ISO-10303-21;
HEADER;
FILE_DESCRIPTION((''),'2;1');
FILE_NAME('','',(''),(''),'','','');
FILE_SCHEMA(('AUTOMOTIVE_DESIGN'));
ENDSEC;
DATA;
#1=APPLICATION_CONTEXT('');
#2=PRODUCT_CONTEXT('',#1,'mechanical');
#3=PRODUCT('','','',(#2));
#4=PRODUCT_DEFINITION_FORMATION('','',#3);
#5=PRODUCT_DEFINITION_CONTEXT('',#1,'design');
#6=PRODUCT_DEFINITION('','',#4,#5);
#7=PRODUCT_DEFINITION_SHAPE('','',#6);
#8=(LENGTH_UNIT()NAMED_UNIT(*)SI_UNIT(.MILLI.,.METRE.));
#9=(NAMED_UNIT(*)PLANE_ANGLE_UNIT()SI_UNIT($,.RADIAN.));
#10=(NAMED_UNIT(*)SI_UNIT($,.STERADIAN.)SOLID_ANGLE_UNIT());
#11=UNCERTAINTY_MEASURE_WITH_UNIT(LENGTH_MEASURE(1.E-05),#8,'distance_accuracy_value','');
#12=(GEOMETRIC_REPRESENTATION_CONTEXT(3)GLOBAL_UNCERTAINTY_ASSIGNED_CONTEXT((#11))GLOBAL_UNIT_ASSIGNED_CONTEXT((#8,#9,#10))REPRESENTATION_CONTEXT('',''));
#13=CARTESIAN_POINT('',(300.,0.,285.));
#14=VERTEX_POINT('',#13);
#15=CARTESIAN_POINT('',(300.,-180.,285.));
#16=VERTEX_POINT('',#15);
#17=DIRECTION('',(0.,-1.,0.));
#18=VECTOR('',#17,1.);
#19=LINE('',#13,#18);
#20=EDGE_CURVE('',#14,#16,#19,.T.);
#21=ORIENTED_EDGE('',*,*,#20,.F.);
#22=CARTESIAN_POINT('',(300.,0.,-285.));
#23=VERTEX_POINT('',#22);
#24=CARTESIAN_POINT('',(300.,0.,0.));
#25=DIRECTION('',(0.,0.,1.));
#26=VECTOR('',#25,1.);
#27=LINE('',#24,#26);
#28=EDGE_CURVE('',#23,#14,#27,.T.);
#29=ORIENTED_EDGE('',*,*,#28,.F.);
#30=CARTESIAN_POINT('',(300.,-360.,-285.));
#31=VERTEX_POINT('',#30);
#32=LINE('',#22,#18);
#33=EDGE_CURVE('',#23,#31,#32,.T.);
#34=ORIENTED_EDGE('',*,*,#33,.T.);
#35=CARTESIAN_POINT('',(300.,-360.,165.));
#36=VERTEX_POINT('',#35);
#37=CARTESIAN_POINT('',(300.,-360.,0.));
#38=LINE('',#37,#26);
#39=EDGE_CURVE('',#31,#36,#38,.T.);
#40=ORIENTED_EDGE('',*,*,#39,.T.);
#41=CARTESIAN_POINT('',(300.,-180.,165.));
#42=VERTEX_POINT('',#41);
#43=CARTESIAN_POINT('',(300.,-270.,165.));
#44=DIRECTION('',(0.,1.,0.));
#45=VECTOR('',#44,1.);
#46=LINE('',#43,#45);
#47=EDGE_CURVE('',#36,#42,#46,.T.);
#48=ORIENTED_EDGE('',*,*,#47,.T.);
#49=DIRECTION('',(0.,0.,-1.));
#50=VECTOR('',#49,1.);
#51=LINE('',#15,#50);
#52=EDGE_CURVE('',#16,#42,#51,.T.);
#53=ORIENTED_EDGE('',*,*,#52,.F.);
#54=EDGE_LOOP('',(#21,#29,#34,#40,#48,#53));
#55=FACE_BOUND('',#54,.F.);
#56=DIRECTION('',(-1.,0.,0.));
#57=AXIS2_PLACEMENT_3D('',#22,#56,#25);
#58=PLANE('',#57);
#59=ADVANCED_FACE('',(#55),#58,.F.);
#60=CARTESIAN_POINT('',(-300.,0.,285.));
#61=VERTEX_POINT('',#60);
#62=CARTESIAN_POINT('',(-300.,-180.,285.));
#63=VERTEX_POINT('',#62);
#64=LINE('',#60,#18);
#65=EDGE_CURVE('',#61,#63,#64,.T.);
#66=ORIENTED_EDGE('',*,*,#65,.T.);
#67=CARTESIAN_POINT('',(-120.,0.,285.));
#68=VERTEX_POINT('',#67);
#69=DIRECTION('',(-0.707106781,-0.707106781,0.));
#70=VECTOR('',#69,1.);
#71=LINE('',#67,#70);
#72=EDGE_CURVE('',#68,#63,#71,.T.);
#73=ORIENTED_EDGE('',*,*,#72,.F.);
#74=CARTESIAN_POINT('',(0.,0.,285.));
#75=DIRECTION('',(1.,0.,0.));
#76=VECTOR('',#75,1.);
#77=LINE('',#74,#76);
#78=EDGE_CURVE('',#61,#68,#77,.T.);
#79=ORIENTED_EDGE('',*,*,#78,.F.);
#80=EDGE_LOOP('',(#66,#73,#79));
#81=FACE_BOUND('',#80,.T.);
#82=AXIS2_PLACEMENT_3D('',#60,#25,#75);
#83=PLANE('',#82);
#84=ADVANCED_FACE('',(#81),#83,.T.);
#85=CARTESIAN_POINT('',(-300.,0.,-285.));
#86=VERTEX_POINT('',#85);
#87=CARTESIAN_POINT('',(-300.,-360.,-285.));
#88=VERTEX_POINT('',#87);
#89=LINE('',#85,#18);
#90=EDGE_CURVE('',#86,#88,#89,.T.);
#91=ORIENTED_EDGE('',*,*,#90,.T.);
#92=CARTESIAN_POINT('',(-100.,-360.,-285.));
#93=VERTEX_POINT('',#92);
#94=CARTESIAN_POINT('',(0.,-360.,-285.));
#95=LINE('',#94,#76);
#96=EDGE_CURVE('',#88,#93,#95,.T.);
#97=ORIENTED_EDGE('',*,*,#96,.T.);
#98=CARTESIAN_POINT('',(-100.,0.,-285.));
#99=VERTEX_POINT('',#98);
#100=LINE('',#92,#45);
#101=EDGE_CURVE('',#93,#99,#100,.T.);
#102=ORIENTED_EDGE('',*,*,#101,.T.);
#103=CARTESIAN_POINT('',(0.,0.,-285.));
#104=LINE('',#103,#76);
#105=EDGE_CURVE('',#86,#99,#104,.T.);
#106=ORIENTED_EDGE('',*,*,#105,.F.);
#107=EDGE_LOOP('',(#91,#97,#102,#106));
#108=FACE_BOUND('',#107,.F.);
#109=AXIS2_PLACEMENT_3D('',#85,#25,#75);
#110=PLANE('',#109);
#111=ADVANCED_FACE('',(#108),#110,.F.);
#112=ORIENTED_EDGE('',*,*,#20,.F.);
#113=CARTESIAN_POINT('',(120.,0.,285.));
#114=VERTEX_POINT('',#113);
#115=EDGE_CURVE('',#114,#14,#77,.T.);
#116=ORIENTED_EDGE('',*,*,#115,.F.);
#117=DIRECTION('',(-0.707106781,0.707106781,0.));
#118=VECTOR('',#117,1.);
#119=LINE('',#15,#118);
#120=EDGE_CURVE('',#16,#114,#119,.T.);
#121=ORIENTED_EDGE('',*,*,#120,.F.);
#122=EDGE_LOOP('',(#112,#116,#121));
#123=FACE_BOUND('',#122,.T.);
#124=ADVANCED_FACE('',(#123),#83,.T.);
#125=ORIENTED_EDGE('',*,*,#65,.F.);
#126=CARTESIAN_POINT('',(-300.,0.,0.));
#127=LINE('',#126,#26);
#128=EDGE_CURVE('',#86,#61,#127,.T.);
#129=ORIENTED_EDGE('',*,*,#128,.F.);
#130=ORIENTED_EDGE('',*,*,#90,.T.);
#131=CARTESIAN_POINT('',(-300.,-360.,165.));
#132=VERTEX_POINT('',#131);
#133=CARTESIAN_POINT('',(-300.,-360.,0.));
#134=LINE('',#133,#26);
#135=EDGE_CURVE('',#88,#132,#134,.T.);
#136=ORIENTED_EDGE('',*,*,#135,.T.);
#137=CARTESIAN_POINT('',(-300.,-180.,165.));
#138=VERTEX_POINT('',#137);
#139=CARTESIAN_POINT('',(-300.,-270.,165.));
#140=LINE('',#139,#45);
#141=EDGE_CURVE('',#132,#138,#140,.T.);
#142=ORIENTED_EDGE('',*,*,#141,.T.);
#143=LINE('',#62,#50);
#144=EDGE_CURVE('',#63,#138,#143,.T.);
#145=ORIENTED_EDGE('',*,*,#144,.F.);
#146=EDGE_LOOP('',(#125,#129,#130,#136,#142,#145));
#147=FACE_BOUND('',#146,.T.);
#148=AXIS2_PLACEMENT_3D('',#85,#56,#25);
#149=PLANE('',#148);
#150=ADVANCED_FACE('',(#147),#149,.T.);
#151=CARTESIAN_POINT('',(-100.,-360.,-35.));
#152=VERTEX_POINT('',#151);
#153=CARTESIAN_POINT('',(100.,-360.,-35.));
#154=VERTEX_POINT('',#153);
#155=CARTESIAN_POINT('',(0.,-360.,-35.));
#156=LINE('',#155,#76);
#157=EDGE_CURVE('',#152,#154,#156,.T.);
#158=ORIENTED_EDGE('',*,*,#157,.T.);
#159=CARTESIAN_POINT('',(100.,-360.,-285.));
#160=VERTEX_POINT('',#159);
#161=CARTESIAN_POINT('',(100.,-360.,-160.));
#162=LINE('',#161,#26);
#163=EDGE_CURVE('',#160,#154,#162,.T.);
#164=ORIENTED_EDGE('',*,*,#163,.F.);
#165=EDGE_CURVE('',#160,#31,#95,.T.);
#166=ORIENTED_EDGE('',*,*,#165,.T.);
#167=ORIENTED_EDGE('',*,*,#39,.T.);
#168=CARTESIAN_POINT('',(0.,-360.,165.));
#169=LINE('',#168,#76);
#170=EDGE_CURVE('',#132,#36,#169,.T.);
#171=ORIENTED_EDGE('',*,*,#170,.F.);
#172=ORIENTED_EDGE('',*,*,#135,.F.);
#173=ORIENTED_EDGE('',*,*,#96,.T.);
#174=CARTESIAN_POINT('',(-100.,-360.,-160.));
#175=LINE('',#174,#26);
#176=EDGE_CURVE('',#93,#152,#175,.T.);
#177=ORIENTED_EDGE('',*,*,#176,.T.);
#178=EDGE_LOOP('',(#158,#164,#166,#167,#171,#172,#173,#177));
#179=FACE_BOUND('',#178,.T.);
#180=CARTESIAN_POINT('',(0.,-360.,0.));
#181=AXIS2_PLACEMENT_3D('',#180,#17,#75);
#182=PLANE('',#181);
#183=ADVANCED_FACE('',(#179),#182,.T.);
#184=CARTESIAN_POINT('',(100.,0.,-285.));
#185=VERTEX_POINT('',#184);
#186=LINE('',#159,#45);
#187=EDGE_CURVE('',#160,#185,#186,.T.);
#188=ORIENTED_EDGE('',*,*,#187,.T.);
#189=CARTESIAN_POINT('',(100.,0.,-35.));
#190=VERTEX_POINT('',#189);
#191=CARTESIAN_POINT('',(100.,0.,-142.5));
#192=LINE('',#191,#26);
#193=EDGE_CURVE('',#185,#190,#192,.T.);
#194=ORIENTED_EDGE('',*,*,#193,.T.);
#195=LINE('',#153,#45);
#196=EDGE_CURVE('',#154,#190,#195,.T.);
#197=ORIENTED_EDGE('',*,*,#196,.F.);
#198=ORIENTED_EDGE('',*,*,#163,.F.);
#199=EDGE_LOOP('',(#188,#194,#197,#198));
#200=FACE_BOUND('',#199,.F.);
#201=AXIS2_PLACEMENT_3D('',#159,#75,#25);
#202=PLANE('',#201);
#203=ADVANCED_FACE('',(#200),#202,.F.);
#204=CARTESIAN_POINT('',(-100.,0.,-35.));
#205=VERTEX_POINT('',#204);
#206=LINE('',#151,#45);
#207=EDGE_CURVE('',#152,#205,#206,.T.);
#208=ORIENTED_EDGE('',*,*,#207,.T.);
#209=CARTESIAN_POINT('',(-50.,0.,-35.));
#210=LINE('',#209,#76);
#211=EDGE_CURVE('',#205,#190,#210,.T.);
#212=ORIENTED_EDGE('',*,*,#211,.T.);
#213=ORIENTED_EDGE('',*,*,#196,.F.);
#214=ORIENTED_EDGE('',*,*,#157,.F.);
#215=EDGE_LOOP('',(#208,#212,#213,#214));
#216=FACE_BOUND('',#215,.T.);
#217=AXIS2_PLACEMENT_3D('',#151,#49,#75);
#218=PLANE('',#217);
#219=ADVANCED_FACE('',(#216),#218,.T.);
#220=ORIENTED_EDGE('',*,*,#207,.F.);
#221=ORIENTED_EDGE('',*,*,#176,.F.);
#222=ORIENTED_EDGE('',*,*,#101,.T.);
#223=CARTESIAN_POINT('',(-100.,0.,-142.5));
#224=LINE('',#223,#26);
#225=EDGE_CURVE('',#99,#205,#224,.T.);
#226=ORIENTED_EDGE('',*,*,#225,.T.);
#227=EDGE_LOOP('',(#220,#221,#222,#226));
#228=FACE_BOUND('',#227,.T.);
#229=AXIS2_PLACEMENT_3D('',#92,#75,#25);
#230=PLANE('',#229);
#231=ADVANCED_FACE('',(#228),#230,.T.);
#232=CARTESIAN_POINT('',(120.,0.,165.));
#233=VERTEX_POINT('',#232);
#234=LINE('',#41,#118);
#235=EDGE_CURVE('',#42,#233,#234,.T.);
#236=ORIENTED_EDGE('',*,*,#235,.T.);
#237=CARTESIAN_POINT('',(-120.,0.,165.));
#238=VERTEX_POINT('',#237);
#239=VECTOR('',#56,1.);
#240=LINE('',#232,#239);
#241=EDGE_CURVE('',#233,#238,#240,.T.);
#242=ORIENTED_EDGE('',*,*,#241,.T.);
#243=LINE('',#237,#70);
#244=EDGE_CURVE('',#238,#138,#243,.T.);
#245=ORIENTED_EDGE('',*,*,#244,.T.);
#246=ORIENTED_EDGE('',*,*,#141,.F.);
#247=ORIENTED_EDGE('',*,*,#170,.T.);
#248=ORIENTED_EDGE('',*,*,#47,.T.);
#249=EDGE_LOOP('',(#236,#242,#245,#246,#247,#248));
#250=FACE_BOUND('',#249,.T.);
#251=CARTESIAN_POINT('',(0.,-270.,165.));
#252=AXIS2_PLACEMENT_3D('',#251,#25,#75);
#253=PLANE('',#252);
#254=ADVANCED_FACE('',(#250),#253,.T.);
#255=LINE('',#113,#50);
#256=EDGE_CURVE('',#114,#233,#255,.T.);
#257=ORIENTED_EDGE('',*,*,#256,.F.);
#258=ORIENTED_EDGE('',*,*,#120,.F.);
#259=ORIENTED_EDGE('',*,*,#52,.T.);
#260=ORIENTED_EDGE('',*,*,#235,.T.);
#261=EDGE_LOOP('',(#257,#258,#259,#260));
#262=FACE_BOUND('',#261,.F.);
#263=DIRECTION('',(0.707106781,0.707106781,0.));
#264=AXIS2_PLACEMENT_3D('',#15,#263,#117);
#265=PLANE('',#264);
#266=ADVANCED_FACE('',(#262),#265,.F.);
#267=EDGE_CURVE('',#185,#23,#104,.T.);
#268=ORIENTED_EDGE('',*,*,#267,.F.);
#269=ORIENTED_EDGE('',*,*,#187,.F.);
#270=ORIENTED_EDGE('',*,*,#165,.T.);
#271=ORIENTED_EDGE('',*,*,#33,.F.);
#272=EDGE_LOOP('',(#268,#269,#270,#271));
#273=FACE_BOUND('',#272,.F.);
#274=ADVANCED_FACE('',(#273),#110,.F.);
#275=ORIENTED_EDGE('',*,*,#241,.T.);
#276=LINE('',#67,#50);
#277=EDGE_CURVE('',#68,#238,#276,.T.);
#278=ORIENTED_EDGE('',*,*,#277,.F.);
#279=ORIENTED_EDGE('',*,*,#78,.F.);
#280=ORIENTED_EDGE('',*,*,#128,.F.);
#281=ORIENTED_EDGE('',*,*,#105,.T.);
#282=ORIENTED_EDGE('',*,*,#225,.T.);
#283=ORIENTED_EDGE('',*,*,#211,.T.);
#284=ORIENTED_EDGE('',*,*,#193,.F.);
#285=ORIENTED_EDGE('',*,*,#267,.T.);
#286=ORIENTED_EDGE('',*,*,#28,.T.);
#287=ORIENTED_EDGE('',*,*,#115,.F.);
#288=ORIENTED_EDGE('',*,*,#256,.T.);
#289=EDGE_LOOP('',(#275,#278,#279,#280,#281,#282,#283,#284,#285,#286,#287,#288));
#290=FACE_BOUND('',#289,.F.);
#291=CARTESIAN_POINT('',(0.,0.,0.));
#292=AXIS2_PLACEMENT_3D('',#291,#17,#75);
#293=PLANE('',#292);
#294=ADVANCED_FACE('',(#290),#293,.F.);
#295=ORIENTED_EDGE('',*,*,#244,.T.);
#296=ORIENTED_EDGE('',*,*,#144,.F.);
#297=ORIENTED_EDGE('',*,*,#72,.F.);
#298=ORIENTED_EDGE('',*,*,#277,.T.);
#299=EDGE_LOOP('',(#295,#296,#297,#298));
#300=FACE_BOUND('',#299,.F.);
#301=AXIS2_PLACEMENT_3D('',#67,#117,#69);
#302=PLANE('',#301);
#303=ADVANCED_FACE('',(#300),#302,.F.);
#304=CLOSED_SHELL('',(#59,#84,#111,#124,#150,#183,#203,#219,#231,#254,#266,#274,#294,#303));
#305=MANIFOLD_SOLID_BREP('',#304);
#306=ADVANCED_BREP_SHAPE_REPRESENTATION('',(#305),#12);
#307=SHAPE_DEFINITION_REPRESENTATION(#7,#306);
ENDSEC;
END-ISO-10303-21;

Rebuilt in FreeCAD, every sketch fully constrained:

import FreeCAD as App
import Part
import Sketcher
from FreeCAD import Vector
Q = App.Units.Quantity


def add_polygon(sketch, points):
    """Adds a closed chain of lines whose ends are joined by coincident constraints."""
    first, n = sketch.GeometryCount, len(points)
    for a, b in zip(points, points[1:] + points[:1]):
        sketch.addGeometry(Part.LineSegment(App.Vector(*a, 0), App.Vector(*b, 0)), False)
    for i in range(n):
        sketch.addConstraint(Sketcher.Constraint("Coincident", first + i, 2, first + (i + 1) % n, 1))

doc = App.newDocument("Part")
body = doc.addObject("PartDesign::Body", "Body")

# Sketch on XZ plane
sketch1 = doc.addObject("Sketcher::SketchObject", "Sketch")
body.addObject(sketch1)
sketch1.AttachmentSupport = (doc.XZ_Plane, [""])
sketch1.MapMode = "FlatFace"
add_polygon(sketch1, [(-300, 285), (-300, -285), (300, -285), (300, 285)])  # lines 0-3
sketch1.addConstraint(Sketcher.Constraint("Vertical", 0))
sketch1.addConstraint(Sketcher.Constraint("Horizontal", 1))
sketch1.addConstraint(Sketcher.Constraint("Vertical", 2))
sketch1.addConstraint(Sketcher.Constraint("Horizontal", 3))
sketch1.addConstraint(Sketcher.Constraint("Symmetric", 0, 2, 2, 2, -1, 1))
sketch1.addConstraint(Sketcher.Constraint("DistanceX", 1, 1, 1, 2, Q("600 mm")))
sketch1.addConstraint(Sketcher.Constraint("DistanceY", 0, 2, 0, 1, Q("570 mm")))
pad1 = doc.addObject("PartDesign::Pad", "Pad")
body.addObject(pad1)
pad1.Profile = sketch1
pad1.Length = 360

# Sketch on XY plane
sketch2 = doc.addObject("Sketcher::SketchObject", "Sketch001")
body.addObject(sketch2)
sketch2.AttachmentSupport = (doc.XY_Plane, [""])
sketch2.MapMode = "FlatFace"
sketch2.AttachmentOffset = App.Placement(Vector(0, 0, 285), App.Rotation())
add_polygon(sketch2, [(-300, -180), (-300, -360), (300, -360), (300, -180), (120, 0), (-120, 0)])  # lines 0-5
sketch2.addConstraint(Sketcher.Constraint("Vertical", 0))
sketch2.addConstraint(Sketcher.Constraint("Horizontal", 1))
sketch2.addConstraint(Sketcher.Constraint("Vertical", 2))
sketch2.addConstraint(Sketcher.Constraint("Horizontal", 4))
sketch2.addConstraint(Sketcher.Constraint("Symmetric", 3, 2, 4, 2, -1, 1))
sketch2.addConstraint(Sketcher.Constraint("Symmetric", 2, 2, 5, 2, -2))
sketch2.addConstraint(Sketcher.Constraint("Perpendicular", 3, 5))
sketch2.addConstraint(Sketcher.Constraint("DistanceX", 1, 1, 1, 2, Q("600 mm")))
sketch2.addConstraint(Sketcher.Constraint("DistanceX", 4, 2, 4, 1, Q("240 mm")))
sketch2.addConstraint(Sketcher.Constraint("DistanceY", 0, 2, 0, 1, Q("180 mm")))
pocket1 = doc.addObject("PartDesign::Pocket", "Pocket")
body.addObject(pocket1)
pocket1.Profile = sketch2
pocket1.Length = 120

# Sketch on XZ plane
sketch3 = doc.addObject("Sketcher::SketchObject", "Sketch002")
body.addObject(sketch3)
sketch3.AttachmentSupport = (doc.XZ_Plane, [""])
sketch3.MapMode = "FlatFace"
sketch3.AttachmentOffset = App.Placement(Vector(0, 0, 360), App.Rotation())
add_polygon(sketch3, [(-100, -35), (-100, -285), (100, -285), (100, -35)])  # lines 0-3
sketch3.addConstraint(Sketcher.Constraint("Vertical", 0))
sketch3.addConstraint(Sketcher.Constraint("Horizontal", 1))
sketch3.addConstraint(Sketcher.Constraint("Vertical", 2))
sketch3.addConstraint(Sketcher.Constraint("Horizontal", 3))
sketch3.addConstraint(Sketcher.Constraint("DistanceX", 1, 1, 1, 2, Q("200 mm")))
sketch3.addConstraint(Sketcher.Constraint("DistanceY", 0, 2, 0, 1, Q("250 mm")))
sketch3.addConstraint(Sketcher.Constraint("DistanceX", 0, 2, -1, 1, Q("100 mm")))
sketch3.addConstraint(Sketcher.Constraint("DistanceY", 0, 2, -1, 1, Q("285 mm")))
pocket2 = doc.addObject("PartDesign::Pocket", "Pocket001")
body.addObject(pocket2)
pocket2.Profile = sketch3
pocket2.Type = "ThroughAll"

doc.recompute()
